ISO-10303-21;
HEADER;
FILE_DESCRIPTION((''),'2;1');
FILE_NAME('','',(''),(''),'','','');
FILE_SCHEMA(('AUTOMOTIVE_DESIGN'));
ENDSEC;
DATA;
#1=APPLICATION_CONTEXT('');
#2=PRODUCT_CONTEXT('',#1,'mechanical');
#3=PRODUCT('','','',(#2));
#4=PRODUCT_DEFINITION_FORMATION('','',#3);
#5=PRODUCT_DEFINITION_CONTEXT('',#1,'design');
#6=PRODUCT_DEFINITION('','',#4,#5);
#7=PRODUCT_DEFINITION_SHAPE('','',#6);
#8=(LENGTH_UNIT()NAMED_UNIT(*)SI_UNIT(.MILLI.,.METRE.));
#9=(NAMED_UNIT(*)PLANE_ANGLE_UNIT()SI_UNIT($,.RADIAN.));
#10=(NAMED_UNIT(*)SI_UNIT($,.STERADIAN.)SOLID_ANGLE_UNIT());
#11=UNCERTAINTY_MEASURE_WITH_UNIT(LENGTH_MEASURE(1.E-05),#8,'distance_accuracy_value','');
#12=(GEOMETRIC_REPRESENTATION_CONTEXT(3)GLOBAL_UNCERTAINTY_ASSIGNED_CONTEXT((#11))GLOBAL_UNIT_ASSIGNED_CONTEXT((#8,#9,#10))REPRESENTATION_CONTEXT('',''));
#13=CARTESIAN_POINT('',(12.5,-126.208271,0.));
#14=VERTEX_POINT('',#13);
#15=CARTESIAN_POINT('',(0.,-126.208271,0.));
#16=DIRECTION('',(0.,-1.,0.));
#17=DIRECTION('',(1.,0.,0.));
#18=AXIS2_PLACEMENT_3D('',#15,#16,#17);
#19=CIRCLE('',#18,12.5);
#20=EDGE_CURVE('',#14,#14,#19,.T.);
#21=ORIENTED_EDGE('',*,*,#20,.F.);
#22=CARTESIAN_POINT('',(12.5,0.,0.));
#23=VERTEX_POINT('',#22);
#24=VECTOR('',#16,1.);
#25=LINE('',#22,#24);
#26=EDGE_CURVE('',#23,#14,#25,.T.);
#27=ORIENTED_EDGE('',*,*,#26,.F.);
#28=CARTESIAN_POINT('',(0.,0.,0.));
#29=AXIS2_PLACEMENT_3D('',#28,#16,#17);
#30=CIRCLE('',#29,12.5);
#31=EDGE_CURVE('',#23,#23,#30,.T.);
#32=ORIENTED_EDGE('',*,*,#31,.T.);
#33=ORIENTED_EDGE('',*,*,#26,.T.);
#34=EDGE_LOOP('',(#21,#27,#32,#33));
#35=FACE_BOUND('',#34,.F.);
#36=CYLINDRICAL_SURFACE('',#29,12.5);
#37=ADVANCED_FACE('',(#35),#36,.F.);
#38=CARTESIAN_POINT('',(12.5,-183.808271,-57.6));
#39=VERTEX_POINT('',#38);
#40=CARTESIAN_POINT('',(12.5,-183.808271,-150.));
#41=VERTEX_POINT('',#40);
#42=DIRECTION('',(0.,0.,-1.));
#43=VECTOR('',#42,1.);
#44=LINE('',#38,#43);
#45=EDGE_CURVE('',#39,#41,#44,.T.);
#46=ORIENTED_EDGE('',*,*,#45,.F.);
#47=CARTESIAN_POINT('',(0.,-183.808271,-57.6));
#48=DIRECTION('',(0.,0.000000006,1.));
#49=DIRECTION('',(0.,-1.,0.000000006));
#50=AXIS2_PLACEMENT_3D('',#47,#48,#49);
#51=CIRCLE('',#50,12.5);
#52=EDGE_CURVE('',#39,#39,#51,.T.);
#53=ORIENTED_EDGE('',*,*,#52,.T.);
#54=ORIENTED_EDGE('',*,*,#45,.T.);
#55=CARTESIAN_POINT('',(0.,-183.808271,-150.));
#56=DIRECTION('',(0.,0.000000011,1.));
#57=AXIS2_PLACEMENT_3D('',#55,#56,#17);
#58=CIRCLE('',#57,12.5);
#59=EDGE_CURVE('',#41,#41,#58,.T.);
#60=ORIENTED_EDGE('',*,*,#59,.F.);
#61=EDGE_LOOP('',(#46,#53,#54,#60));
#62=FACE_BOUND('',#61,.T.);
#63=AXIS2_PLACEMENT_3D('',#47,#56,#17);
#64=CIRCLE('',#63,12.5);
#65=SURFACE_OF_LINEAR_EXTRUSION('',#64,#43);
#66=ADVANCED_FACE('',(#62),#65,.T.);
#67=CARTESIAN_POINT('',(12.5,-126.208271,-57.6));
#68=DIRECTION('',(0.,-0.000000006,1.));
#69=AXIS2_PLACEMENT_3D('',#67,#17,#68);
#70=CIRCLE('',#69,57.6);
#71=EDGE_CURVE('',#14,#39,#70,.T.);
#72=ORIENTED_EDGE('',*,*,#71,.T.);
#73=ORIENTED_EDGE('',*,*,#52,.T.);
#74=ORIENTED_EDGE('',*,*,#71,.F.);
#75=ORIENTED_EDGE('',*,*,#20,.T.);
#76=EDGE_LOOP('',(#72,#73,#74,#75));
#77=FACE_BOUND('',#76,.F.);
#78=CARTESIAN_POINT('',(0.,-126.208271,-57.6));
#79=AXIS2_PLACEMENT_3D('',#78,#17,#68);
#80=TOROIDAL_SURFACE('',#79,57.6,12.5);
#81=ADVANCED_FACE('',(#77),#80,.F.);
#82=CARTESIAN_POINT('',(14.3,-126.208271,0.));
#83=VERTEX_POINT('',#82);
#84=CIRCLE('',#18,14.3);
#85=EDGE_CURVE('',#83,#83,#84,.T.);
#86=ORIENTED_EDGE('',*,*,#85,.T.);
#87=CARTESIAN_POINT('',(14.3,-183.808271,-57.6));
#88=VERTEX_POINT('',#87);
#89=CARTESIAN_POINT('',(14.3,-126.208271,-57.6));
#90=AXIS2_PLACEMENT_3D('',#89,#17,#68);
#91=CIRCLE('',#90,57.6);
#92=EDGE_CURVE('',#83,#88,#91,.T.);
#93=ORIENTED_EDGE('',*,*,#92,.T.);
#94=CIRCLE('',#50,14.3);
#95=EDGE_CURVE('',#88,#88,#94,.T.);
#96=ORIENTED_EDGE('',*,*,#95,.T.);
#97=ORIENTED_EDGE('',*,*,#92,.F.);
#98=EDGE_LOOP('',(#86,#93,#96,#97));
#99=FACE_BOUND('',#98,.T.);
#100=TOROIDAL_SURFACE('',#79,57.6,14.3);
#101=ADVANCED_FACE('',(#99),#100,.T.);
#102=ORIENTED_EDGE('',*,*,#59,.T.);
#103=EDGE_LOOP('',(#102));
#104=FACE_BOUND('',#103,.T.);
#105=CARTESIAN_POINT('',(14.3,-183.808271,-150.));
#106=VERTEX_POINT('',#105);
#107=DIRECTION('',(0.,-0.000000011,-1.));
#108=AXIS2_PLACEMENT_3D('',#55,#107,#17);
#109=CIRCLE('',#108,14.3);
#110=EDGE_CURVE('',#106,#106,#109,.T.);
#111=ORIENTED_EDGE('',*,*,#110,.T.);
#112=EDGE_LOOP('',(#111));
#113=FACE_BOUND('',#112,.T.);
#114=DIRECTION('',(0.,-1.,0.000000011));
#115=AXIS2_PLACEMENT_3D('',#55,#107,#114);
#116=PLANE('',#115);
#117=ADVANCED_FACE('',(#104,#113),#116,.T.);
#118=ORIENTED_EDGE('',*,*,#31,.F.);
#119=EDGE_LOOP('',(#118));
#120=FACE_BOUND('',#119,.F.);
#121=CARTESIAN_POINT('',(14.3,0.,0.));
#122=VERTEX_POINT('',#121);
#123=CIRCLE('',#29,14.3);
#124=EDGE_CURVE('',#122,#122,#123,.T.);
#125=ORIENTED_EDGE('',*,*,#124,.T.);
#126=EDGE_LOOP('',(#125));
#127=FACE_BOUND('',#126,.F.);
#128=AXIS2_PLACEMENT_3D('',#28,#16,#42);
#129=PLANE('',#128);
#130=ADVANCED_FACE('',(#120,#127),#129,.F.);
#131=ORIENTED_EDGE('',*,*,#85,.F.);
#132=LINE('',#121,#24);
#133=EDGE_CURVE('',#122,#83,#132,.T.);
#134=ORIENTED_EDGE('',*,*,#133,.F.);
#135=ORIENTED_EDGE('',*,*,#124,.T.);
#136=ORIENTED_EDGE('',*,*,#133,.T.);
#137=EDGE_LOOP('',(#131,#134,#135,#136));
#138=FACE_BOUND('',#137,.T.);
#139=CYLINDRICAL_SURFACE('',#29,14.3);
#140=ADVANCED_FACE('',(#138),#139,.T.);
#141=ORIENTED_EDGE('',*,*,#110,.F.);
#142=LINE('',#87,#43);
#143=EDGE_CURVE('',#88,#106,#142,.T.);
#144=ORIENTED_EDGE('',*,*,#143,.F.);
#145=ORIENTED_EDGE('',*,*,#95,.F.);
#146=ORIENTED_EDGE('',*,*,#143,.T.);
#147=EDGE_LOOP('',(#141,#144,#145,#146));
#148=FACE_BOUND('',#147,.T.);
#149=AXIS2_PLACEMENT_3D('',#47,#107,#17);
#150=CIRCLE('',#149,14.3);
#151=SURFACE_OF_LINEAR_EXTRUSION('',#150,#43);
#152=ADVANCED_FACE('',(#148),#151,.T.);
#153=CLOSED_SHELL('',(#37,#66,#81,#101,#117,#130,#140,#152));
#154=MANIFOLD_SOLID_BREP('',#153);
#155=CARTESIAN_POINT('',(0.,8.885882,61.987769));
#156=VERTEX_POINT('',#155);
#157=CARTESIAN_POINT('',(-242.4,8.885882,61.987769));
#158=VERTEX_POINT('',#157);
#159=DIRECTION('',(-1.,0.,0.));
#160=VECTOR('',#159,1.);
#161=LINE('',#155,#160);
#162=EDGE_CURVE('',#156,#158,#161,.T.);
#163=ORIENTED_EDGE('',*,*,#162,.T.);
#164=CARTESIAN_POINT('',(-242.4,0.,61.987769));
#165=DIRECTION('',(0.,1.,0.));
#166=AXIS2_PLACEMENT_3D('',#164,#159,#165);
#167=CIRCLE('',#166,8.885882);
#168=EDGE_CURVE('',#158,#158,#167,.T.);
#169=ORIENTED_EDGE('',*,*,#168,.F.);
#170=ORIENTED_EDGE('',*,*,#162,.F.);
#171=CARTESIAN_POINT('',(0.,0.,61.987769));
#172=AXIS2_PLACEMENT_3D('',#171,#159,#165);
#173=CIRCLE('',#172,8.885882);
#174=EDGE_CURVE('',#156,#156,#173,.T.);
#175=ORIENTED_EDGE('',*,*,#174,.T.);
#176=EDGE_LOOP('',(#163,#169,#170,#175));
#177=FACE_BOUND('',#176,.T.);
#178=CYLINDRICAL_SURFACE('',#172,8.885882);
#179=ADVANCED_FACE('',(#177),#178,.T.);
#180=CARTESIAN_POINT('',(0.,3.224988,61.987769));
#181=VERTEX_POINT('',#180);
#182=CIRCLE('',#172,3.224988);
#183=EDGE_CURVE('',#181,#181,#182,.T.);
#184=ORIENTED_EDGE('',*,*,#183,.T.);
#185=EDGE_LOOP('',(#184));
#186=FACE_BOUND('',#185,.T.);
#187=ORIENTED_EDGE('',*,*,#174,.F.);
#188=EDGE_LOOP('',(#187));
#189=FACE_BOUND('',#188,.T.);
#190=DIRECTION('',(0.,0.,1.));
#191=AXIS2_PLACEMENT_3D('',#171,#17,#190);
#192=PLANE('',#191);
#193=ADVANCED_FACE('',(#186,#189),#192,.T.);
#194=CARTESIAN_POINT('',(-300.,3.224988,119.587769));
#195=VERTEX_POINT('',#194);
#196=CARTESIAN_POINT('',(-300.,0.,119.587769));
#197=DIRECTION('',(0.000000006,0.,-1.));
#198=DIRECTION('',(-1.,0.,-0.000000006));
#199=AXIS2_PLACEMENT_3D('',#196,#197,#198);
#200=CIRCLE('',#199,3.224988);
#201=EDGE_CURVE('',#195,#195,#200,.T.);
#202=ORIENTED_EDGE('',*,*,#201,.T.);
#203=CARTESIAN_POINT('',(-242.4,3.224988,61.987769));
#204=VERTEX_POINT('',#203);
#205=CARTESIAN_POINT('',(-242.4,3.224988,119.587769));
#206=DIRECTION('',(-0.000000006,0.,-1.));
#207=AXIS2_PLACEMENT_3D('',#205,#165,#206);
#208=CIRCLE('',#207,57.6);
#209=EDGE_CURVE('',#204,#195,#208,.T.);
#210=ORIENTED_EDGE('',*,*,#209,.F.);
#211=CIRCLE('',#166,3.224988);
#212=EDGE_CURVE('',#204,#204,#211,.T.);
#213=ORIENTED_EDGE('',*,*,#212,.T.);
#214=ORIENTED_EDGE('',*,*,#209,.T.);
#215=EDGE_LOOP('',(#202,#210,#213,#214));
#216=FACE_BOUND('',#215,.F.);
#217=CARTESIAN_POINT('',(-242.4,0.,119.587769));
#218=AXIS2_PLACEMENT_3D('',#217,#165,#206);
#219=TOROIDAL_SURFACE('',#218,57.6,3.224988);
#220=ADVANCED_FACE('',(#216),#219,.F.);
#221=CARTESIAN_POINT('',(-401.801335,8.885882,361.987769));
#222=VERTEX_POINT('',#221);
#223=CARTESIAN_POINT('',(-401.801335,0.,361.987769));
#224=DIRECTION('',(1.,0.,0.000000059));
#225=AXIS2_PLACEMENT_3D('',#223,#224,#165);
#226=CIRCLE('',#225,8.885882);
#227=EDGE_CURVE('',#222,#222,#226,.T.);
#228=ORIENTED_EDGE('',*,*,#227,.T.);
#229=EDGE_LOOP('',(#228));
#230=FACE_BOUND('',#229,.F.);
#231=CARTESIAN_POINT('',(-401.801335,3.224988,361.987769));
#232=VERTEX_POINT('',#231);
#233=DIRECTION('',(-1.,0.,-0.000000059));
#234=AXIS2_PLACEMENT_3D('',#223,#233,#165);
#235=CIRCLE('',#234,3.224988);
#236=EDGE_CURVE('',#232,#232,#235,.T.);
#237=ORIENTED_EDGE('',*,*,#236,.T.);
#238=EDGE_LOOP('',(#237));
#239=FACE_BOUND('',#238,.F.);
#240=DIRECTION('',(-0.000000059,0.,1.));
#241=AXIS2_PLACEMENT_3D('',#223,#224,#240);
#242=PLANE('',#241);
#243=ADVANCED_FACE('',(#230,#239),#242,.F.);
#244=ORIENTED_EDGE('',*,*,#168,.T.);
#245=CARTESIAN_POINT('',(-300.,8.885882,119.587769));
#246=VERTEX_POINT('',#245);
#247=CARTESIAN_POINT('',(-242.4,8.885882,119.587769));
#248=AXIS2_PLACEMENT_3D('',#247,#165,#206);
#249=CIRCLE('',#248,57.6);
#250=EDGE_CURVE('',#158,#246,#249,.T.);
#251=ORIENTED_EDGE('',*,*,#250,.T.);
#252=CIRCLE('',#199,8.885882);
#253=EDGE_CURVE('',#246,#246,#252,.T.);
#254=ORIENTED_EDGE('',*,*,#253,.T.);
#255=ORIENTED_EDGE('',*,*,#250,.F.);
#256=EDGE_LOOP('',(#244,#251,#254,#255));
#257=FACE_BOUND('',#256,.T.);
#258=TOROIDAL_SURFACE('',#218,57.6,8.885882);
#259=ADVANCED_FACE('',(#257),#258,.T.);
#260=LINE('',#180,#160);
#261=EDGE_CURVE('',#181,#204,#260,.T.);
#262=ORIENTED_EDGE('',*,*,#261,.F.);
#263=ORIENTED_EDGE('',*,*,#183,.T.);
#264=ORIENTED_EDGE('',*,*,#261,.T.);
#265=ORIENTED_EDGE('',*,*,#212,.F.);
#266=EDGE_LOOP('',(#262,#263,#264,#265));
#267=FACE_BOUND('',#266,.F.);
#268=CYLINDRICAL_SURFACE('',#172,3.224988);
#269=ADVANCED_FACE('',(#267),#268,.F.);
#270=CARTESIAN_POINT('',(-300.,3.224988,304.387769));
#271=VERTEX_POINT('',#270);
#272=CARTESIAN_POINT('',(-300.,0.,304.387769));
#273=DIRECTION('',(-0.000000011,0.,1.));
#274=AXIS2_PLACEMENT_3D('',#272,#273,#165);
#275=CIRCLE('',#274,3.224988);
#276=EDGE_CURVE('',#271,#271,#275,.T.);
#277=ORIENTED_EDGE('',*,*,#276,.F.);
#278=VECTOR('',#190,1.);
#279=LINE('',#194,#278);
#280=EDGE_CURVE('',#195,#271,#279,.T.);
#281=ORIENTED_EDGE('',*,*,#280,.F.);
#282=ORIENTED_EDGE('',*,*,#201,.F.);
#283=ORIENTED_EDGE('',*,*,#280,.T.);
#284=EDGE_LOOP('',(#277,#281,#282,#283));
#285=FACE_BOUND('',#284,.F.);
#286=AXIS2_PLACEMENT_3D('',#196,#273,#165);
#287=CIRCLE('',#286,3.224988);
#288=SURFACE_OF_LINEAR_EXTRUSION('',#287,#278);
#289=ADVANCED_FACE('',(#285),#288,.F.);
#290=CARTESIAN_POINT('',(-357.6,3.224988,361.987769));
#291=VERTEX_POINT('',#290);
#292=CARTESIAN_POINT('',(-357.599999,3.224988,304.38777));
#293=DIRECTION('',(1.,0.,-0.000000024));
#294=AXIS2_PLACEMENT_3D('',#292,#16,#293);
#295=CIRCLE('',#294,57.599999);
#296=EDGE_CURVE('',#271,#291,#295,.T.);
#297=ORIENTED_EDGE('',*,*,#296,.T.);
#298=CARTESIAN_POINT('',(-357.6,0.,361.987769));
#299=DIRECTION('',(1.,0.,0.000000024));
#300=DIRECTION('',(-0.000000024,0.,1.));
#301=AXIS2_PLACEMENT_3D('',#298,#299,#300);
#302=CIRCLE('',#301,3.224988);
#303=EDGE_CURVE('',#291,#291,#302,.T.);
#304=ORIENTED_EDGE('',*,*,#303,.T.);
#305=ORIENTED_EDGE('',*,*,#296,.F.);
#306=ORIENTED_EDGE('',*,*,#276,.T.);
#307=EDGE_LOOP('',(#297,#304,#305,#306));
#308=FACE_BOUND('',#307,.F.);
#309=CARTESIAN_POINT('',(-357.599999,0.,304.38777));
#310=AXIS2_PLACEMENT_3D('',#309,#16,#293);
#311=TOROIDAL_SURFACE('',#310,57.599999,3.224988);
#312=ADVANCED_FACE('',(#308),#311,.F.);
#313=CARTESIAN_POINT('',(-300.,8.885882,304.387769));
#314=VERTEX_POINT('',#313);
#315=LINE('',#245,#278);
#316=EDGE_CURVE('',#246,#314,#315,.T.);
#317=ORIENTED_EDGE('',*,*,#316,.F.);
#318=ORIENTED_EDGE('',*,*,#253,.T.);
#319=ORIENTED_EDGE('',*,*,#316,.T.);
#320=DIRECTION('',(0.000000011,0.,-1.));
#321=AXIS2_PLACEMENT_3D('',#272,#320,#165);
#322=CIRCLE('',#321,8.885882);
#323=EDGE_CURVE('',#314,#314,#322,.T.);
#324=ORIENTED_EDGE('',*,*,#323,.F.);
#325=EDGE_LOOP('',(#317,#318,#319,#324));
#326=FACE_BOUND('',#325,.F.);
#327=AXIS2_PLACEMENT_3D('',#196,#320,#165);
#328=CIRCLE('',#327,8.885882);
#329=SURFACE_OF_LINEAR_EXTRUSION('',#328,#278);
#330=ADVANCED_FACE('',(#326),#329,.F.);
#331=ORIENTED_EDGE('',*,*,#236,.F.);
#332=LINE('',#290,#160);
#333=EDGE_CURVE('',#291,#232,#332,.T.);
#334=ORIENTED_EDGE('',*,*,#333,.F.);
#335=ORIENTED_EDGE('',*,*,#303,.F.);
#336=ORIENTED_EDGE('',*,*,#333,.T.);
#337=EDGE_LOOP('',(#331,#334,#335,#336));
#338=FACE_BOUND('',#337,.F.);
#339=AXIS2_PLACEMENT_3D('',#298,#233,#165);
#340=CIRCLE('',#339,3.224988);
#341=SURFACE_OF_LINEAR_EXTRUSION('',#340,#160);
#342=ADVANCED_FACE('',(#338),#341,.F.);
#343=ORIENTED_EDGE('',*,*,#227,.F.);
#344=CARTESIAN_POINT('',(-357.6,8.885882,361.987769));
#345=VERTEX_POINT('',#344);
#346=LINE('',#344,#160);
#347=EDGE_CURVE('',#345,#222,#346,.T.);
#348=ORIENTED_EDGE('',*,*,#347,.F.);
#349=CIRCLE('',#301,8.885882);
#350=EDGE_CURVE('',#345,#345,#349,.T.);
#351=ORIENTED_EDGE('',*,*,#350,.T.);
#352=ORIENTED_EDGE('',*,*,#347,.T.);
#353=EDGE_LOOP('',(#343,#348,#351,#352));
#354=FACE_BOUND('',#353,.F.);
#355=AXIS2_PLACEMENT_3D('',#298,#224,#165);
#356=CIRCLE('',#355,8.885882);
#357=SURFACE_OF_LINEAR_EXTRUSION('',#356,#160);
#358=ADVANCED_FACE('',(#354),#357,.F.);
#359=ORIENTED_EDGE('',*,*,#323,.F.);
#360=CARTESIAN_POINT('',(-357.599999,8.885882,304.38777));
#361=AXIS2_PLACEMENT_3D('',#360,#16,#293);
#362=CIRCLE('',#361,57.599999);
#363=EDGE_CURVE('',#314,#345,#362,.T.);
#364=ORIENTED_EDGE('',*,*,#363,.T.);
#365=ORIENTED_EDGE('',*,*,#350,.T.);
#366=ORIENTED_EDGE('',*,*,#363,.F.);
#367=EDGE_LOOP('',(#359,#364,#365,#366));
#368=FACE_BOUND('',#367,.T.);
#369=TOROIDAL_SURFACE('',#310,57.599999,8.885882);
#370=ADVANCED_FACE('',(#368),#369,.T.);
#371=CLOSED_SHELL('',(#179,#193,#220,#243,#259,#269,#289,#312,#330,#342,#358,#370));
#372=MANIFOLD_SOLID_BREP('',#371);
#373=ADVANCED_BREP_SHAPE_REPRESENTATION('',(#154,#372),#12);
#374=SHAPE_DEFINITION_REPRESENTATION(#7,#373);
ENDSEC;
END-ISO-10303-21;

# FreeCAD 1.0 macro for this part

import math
import FreeCAD as App
import Part
import Sketcher

doc = App.newDocument("Part")
body = doc.addObject("PartDesign::Body", "Body")

sketch1 = doc.addObject("Sketcher::SketchObject", "Sketch")
body.addObject(sketch1)
sketch1.AttachmentSupport = (doc.XZ_Plane, [""])
sketch1.MapMode = "FlatFace"
sketch1.addGeometry([
    Part.Circle(App.Vector(0, 0, 0), App.Vector(0, 0, 1), 14),
    Part.Circle(App.Vector(0, 0, 0), App.Vector(0, 0, 1), 12),
], False)
sketch1.addConstraint([
    Sketcher.Constraint("Coincident", 0, 3, -1, 1),
    Sketcher.Constraint("Coincident", 1, 3, -1, 1),
    Sketcher.Constraint("Diameter", 1, 25.0),
    Sketcher.Constraint("Diameter", 0, 28.6),
])

sketch2 = doc.addObject("Sketcher::SketchObject", "Sketch001")
body.addObject(sketch2)
sketch2.AttachmentSupport = (doc.YZ_Plane, [""])
sketch2.MapMode = "FlatFace"
sketch2.addGeometry([
    Part.LineSegment(App.Vector(0, 0, 0), App.Vector(-126, 0, 0)),
    Part.ArcOfCircle(Part.Circle(App.Vector(-126, -58, 0), App.Vector(0, 0, 1), 58), math.radians(90), math.radians(180)),
    Part.LineSegment(App.Vector(-184, -58, 0), App.Vector(-184, -150, 0)),
], False)
sketch2.addConstraint([
    Sketcher.Constraint("Tangent", 0, 2, 1, 1),
    Sketcher.Constraint("Tangent", 1, 2, 2, 1),
    Sketcher.Constraint("Horizontal", 0),
    Sketcher.Constraint("Vertical", 2),
    Sketcher.Constraint("Coincident", 0, 1, -1, 1),
    Sketcher.Constraint("Radius", 1, 57.6),
    Sketcher.Constraint("DistanceY", 2, 2, 2, 1, 92.4),
    Sketcher.Constraint("DistanceX", 0, 2, 0, 1, 126.208271),
])
doc.recompute()

additivepipe = doc.addObject("PartDesign::AdditivePipe", "AdditivePipe")
body.addObject(additivepipe)
additivepipe.Profile = sketch1
additivepipe.Spine = (sketch2, ["Edge1", "Edge2", "Edge3"])
body2 = doc.addObject("PartDesign::Body", "Body001")

sketch3 = doc.addObject("Sketcher::SketchObject", "Sketch002")
body2.addObject(sketch3)
sketch3.AttachmentSupport = (doc.getObject("YZ_Plane001"), [""])
sketch3.MapMode = "FlatFace"
sketch3.addGeometry([
    Part.Circle(App.Vector(0, 62, 0), App.Vector(0, 0, 1), 8.9),
    Part.Circle(App.Vector(0, 62, 0), App.Vector(0, 0, 1), 3.2),
], False)
sketch3.addConstraint([
    Sketcher.Constraint("Coincident", 1, 3, 0, 3),
    Sketcher.Constraint("PointOnObject", 0, 3, -2),
    Sketcher.Constraint("Diameter", 0, 17.771764),
    Sketcher.Constraint("Diameter", 1, 6.449976),
    Sketcher.Constraint("DistanceY", -1, 1, 0, 3, 61.987769),
])

sketch4 = doc.addObject("Sketcher::SketchObject", "Sketch003")
body2.addObject(sketch4)
sketch4.AttachmentSupport = (doc.getObject("XZ_Plane001"), [""])
sketch4.MapMode = "FlatFace"
sketch4.addGeometry([
    Part.LineSegment(App.Vector(0, 62, 0), App.Vector(-242, 62, 0)),
    Part.ArcOfCircle(Part.Circle(App.Vector(-242, 120, 0), App.Vector(0, 0, 1), 58), math.radians(-180), math.radians(-90)),
    Part.LineSegment(App.Vector(-300, 120, 0), App.Vector(-300, 304, 0)),
    Part.ArcOfCircle(Part.Circle(App.Vector(-358, 304, 0), App.Vector(0, 0, 1), 58), math.radians(0), math.radians(90)),
    Part.LineSegment(App.Vector(-358, 362, 0), App.Vector(-402, 362, 0)),
], False)
sketch4.addConstraint([
    Sketcher.Constraint("Tangent", 0, 2, 1, 2),
    Sketcher.Constraint("Tangent", 1, 1, 2, 1),
    Sketcher.Constraint("Tangent", 2, 2, 3, 1),
    Sketcher.Constraint("Tangent", 3, 2, 4, 1),
    Sketcher.Constraint("Horizontal", 0),
    Sketcher.Constraint("Vertical", 2),
    Sketcher.Constraint("Horizontal", 4),
    Sketcher.Constraint("Equal", 1, 3),
    Sketcher.Constraint("PointOnObject", 0, 1, -2),
    Sketcher.Constraint("Radius", 1, 57.6),
    Sketcher.Constraint("DistanceX", 0, 2, 0, 1, 242.4),
    Sketcher.Constraint("DistanceY", 2, 1, 2, 2, 184.8),
    Sketcher.Constraint("DistanceX", 4, 2, 4, 1, 44.201335),
    Sketcher.Constraint("DistanceY", -1, 1, 1, 3, 119.587769),
])
doc.recompute()

additivepipe2 = doc.addObject("PartDesign::AdditivePipe", "AdditivePipe001")
body2.addObject(additivepipe2)
additivepipe2.Profile = sketch3
additivepipe2.Spine = (sketch4, ["Edge1", "Edge2", "Edge3", "Edge4", "Edge5"])

doc.recompute()
